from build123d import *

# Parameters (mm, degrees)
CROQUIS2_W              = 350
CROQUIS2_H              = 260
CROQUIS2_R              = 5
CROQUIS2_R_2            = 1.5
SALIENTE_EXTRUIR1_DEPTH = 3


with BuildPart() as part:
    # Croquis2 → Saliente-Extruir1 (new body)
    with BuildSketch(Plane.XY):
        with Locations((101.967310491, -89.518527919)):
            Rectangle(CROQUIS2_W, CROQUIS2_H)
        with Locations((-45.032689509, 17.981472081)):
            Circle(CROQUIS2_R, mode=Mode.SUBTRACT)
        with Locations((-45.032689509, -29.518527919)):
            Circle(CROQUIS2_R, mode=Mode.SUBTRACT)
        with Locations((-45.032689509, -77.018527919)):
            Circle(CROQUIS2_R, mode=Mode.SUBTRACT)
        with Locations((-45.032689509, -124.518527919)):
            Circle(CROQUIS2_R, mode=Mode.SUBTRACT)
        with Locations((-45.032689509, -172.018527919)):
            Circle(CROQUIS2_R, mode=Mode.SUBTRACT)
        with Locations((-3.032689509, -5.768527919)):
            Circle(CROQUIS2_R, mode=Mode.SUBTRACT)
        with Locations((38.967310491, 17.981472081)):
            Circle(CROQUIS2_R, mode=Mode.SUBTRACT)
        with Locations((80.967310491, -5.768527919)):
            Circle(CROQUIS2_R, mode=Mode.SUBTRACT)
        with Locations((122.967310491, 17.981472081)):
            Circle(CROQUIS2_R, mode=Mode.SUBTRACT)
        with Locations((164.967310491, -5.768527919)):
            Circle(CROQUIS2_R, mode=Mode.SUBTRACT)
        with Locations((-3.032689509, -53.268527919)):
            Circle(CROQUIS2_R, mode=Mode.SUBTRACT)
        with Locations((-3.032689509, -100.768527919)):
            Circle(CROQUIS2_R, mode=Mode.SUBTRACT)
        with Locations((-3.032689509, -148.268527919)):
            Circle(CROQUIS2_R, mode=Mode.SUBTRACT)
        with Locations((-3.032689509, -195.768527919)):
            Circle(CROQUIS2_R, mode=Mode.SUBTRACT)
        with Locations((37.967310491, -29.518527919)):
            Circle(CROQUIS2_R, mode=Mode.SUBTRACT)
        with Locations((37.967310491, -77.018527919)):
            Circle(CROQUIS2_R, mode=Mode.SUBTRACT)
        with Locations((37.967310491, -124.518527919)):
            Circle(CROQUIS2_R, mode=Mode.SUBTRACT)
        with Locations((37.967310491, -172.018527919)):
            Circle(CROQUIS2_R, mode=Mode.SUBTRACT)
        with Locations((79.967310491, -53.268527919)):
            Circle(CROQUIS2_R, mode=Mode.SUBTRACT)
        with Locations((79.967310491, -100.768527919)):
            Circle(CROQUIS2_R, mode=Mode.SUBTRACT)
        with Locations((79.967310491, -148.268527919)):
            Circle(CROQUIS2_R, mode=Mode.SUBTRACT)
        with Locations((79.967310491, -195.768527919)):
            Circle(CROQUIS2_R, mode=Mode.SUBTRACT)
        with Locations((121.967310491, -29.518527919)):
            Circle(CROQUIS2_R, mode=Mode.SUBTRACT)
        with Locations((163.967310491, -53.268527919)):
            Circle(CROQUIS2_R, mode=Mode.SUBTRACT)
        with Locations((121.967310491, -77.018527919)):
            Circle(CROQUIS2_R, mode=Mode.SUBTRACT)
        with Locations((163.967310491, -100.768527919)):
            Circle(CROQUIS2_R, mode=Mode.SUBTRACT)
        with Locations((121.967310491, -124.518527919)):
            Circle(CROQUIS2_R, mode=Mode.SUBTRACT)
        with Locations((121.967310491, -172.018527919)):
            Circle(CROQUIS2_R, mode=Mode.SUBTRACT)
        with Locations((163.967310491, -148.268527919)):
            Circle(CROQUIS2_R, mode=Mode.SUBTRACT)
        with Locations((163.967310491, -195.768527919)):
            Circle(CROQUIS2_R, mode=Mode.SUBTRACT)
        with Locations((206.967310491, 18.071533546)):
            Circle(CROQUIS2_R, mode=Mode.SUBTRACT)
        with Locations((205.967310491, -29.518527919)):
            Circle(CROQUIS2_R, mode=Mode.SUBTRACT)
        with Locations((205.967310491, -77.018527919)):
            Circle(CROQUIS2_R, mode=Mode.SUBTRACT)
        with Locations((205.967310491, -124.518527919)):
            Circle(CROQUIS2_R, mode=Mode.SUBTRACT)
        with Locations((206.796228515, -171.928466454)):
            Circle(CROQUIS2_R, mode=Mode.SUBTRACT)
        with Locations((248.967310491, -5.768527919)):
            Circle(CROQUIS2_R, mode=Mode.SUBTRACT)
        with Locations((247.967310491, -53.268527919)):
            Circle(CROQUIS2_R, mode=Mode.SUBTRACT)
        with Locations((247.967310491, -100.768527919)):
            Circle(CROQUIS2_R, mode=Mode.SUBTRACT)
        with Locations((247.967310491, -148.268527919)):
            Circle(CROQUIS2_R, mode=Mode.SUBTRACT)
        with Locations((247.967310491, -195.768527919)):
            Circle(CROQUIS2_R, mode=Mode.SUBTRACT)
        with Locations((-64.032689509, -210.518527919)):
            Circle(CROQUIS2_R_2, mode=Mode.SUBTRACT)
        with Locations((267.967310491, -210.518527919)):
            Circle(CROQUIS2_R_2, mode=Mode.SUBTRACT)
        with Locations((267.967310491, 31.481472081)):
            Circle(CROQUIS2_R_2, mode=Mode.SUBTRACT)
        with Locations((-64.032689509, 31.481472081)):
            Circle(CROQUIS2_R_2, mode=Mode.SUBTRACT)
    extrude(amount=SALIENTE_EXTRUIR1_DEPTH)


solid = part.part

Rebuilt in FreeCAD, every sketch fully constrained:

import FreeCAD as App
import Part
import Sketcher
from FreeCAD import Vector
Q = App.Units.Quantity


def add_polygon(sketch, points):
    """Adds a closed chain of lines whose ends are joined by coincident constraints."""
    first, n = sketch.GeometryCount, len(points)
    for a, b in zip(points, points[1:] + points[:1]):
        sketch.addGeometry(Part.LineSegment(App.Vector(*a, 0), App.Vector(*b, 0)), False)
    for i in range(n):
        sketch.addConstraint(Sketcher.Constraint("Coincident", first + i, 2, first + (i + 1) % n, 1))

doc = App.newDocument("Part")
body = doc.addObject("PartDesign::Body", "Body")

sketch1 = body.newObject("Sketcher::SketchObject", "Sketch")
sketch1.AttachmentSupport = (doc.getObject("XY_Plane"), [""])
sketch1.MapMode = "FlatFace"
add_polygon(sketch1, [(-73.03269, 40.481472), (-73.03269, -219.518528), (276.96731, -219.518528), (276.96731, 40.481472)])
sketch1.addGeometry(Part.Circle(Vector(-64.03269, -210.518528, 0), Vector(0, 0, 1), 1.5), False)
sketch1.addGeometry(Part.Circle(Vector(-3.03269, -195.768528, 0), Vector(0, 0, 1), 5), False)
sketch1.addGeometry(Part.Circle(Vector(-45.03269, -172.018528, 0), Vector(0, 0, 1), 5), False)
sketch1.addGeometry(Part.Circle(Vector(79.96731, -195.768528, 0), Vector(0, 0, 1), 5), False)
sketch1.addGeometry(Part.Circle(Vector(37.96731, -172.018528, 0), Vector(0, 0, 1), 5), False)
sketch1.addGeometry(Part.Circle(Vector(-45.03269, -124.518528, 0), Vector(0, 0, 1), 5), False)
sketch1.addGeometry(Part.Circle(Vector(-3.03269, -148.268528, 0), Vector(0, 0, 1), 5), False)
sketch1.addGeometry(Part.Circle(Vector(-3.03269, -100.768528, 0), Vector(0, 0, 1), 5), False)
sketch1.addGeometry(Part.Circle(Vector(37.96731, -124.518528, 0), Vector(0, 0, 1), 5), False)
sketch1.addGeometry(Part.Circle(Vector(79.96731, -148.268528, 0), Vector(0, 0, 1), 5), False)
sketch1.addGeometry(Part.Circle(Vector(79.96731, -100.768528, 0), Vector(0, 0, 1), 5), False)
sketch1.addGeometry(Part.Circle(Vector(163.96731, -195.768528, 0), Vector(0, 0, 1), 5), False)
sketch1.addGeometry(Part.Circle(Vector(121.96731, -172.018528, 0), Vector(0, 0, 1), 5), False)
sketch1.addGeometry(Part.Circle(Vector(267.96731, -210.518528, 0), Vector(0, 0, 1), 1.5), False)
sketch1.addGeometry(Part.Circle(Vector(247.96731, -195.768528, 0), Vector(0, 0, 1), 5), False)
sketch1.addGeometry(Part.Circle(Vector(206.796229, -171.928466, 0), Vector(0, 0, 1), 5), False)
sketch1.addGeometry(Part.Circle(Vector(121.96731, -124.518528, 0), Vector(0, 0, 1), 5), False)
sketch1.addGeometry(Part.Circle(Vector(163.96731, -148.268528, 0), Vector(0, 0, 1), 5), False)
sketch1.addGeometry(Part.Circle(Vector(163.96731, -100.768528, 0), Vector(0, 0, 1), 5), False)
sketch1.addGeometry(Part.Circle(Vector(205.96731, -124.518528, 0), Vector(0, 0, 1), 5), False)
sketch1.addGeometry(Part.Circle(Vector(247.96731, -148.268528, 0), Vector(0, 0, 1), 5), False)
sketch1.addGeometry(Part.Circle(Vector(247.96731, -100.768528, 0), Vector(0, 0, 1), 5), False)
sketch1.addGeometry(Part.Circle(Vector(-45.03269, -77.018528, 0), Vector(0, 0, 1), 5), False)
sketch1.addGeometry(Part.Circle(Vector(-45.03269, -29.518528, 0), Vector(0, 0, 1), 5), False)
sketch1.addGeometry(Part.Circle(Vector(-3.03269, -53.268528, 0), Vector(0, 0, 1), 5), False)
sketch1.addGeometry(Part.Circle(Vector(37.96731, -77.018528, 0), Vector(0, 0, 1), 5), False)
sketch1.addGeometry(Part.Circle(Vector(37.96731, -29.518528, 0), Vector(0, 0, 1), 5), False)
sketch1.addGeometry(Part.Circle(Vector(79.96731, -53.268528, 0), Vector(0, 0, 1), 5), False)
sketch1.addGeometry(Part.Circle(Vector(-3.03269, -5.768528, 0), Vector(0, 0, 1), 5), False)
sketch1.addGeometry(Part.Circle(Vector(-45.03269, 17.981472, 0), Vector(0, 0, 1), 5), False)
sketch1.addGeometry(Part.Circle(Vector(-64.03269, 31.481472, 0), Vector(0, 0, 1), 1.5), False)
sketch1.addGeometry(Part.Circle(Vector(80.96731, -5.768528, 0), Vector(0, 0, 1), 5), False)
sketch1.addGeometry(Part.Circle(Vector(38.96731, 17.981472, 0), Vector(0, 0, 1), 5), False)
sketch1.addGeometry(Part.Circle(Vector(121.96731, -77.018528, 0), Vector(0, 0, 1), 5), False)
sketch1.addGeometry(Part.Circle(Vector(121.96731, -29.518528, 0), Vector(0, 0, 1), 5), False)
sketch1.addGeometry(Part.Circle(Vector(163.96731, -53.268528, 0), Vector(0, 0, 1), 5), False)
sketch1.addGeometry(Part.Circle(Vector(205.96731, -77.018528, 0), Vector(0, 0, 1), 5), False)
sketch1.addGeometry(Part.Circle(Vector(205.96731, -29.518528, 0), Vector(0, 0, 1), 5), False)
sketch1.addGeometry(Part.Circle(Vector(247.96731, -53.268528, 0), Vector(0, 0, 1), 5), False)
sketch1.addGeometry(Part.Circle(Vector(164.96731, -5.768528, 0), Vector(0, 0, 1), 5), False)
sketch1.addGeometry(Part.Circle(Vector(122.96731, 17.981472, 0), Vector(0, 0, 1), 5), False)
sketch1.addGeometry(Part.Circle(Vector(248.96731, -5.768528, 0), Vector(0, 0, 1), 5), False)
sketch1.addGeometry(Part.Circle(Vector(206.96731, 18.071534, 0), Vector(0, 0, 1), 5), False)
sketch1.addGeometry(Part.Circle(Vector(267.96731, 31.481472, 0), Vector(0, 0, 1), 1.5), False)
sketch1.addConstraint([
    Sketcher.Constraint("Vertical", 0),
    Sketcher.Constraint("Horizontal", 1),
    Sketcher.Constraint("Vertical", 2),
    Sketcher.Constraint("Horizontal", 3),
    Sketcher.Constraint("Equal", 5, 6),
    Sketcher.Constraint("Equal", 6, 7),
    Sketcher.Constraint("Equal", 7, 8),
    Sketcher.Constraint("Equal", 8, 9),
    Sketcher.Constraint("Equal", 9, 10),
    Sketcher.Constraint("Equal", 10, 11),
    Sketcher.Constraint("Equal", 11, 12),
    Sketcher.Constraint("Equal", 12, 13),
    Sketcher.Constraint("Equal", 13, 14),
    Sketcher.Constraint("Equal", 14, 15),
    Sketcher.Constraint("Equal", 15, 16),
    Sketcher.Constraint("Equal", 4, 17),
    Sketcher.Constraint("Equal", 16, 18),
    Sketcher.Constraint("Equal", 18, 19),
    Sketcher.Constraint("Equal", 19, 20),
    Sketcher.Constraint("Equal", 20, 21),
    Sketcher.Constraint("Equal", 21, 22),
    Sketcher.Constraint("Equal", 22, 23),
    Sketcher.Constraint("Equal", 23, 24),
    Sketcher.Constraint("Equal", 24, 25),
    Sketcher.Constraint("Equal", 25, 26),
    Sketcher.Constraint("Equal", 26, 27),
    Sketcher.Constraint("Equal", 27, 28),
    Sketcher.Constraint("Equal", 28, 29),
    Sketcher.Constraint("Equal", 29, 30),
    Sketcher.Constraint("Equal", 30, 31),
    Sketcher.Constraint("Equal", 31, 32),
    Sketcher.Constraint("Equal", 32, 33),
    Sketcher.Constraint("Equal", 17, 34),
    Sketcher.Constraint("Equal", 33, 35),
    Sketcher.Constraint("Equal", 35, 36),
    Sketcher.Constraint("Equal", 36, 37),
    Sketcher.Constraint("Equal", 37, 38),
    Sketcher.Constraint("Equal", 38, 39),
    Sketcher.Constraint("Equal", 39, 40),
    Sketcher.Constraint("Equal", 40, 41),
    Sketcher.Constraint("Equal", 41, 42),
    Sketcher.Constraint("Equal", 42, 43),
    Sketcher.Constraint("Equal", 43, 44),
    Sketcher.Constraint("Equal", 44, 45),
    Sketcher.Constraint("Equal", 45, 46),
    Sketcher.Constraint("Equal", 34, 47),
    Sketcher.Constraint("Horizontal", 5, 3, 7, 3),
    Sketcher.Constraint("Horizontal", 6, 3, 8, 3),
    Sketcher.Constraint("Horizontal", 9, 3, 12, 3),
    Sketcher.Constraint("Horizontal", 10, 3, 13, 3),
    Sketcher.Constraint("Horizontal", 11, 3, 14, 3),
    Sketcher.Constraint("Horizontal", 7, 3, 15, 3),
    Sketcher.Constraint("Horizontal", 8, 3, 16, 3),
    Sketcher.Constraint("Horizontal", 4, 3, 17, 3),
    Sketcher.Constraint("Horizontal", 15, 3, 18, 3),
    Sketcher.Constraint("Horizontal", 12, 3, 20, 3),
    Sketcher.Constraint("Horizontal", 13, 3, 21, 3),
    Sketcher.Constraint("Horizontal", 14, 3, 22, 3),
    Sketcher.Constraint("Horizontal", 20, 3, 23, 3),
    Sketcher.Constraint("Horizontal", 21, 3, 24, 3),
    Sketcher.Constraint("Horizontal", 22, 3, 25, 3),
    Sketcher.Constraint("Horizontal", 26, 3, 29, 3),
    Sketcher.Constraint("Horizontal", 27, 3, 30, 3),
    Sketcher.Constraint("Horizontal", 28, 3, 31, 3),
    Sketcher.Constraint("Horizontal", 32, 3, 35, 3),
    Sketcher.Constraint("Horizontal", 33, 3, 36, 3),
    Sketcher.Constraint("Horizontal", 29, 3, 37, 3),
    Sketcher.Constraint("Horizontal", 30, 3, 38, 3),
    Sketcher.Constraint("Horizontal", 31, 3, 39, 3),
    Sketcher.Constraint("Horizontal", 37, 3, 40, 3),
    Sketcher.Constraint("Horizontal", 38, 3, 41, 3),
    Sketcher.Constraint("Horizontal", 39, 3, 42, 3),
    Sketcher.Constraint("Horizontal", 35, 3, 43, 3),
    Sketcher.Constraint("Horizontal", 36, 3, 44, 3),
    Sketcher.Constraint("Horizontal", 43, 3, 45, 3),
    Sketcher.Constraint("Horizontal", 34, 3, 47, 3),
    Sketcher.Constraint("Vertical", 6, 3, 9, 3),
    Sketcher.Constraint("Vertical", 5, 3, 10, 3),
    Sketcher.Constraint("Vertical", 10, 3, 11, 3),
    Sketcher.Constraint("Vertical", 8, 3, 12, 3),
    Sketcher.Constraint("Vertical", 7, 3, 13, 3),
    Sketcher.Constraint("Vertical", 13, 3, 14, 3),
    Sketcher.Constraint("Vertical", 16, 3, 20, 3),
    Sketcher.Constraint("Vertical", 15, 3, 21, 3),
    Sketcher.Constraint("Vertical", 21, 3, 22, 3),
    Sketcher.Constraint("Vertical", 18, 3, 24, 3),
    Sketcher.Constraint("Vertical", 24, 3, 25, 3),
    Sketcher.Constraint("Vertical", 9, 3, 26, 3),
    Sketcher.Constraint("Vertical", 26, 3, 27, 3),
    Sketcher.Constraint("Vertical", 11, 3, 28, 3),
    Sketcher.Constraint("Vertical", 12, 3, 29, 3),
    Sketcher.Constraint("Vertical", 29, 3, 30, 3),
    Sketcher.Constraint("Vertical", 14, 3, 31, 3),
    Sketcher.Constraint("Vertical", 28, 3, 32, 3),
    Sketcher.Constraint("Vertical", 27, 3, 33, 3),
    Sketcher.Constraint("Vertical", 4, 3, 34, 3),
    Sketcher.Constraint("Vertical", 20, 3, 37, 3),
    Sketcher.Constraint("Vertical", 37, 3, 38, 3),
    Sketcher.Constraint("Vertical", 22, 3, 39, 3),
    Sketcher.Constraint("Vertical", 23, 3, 40, 3),
    Sketcher.Constraint("Vertical", 40, 3, 41, 3),
    Sketcher.Constraint("Vertical", 25, 3, 42, 3),
    Sketcher.Constraint("Vertical", 17, 3, 47, 3),
    Sketcher.Constraint("Diameter", 4, Q("3 mm")),
    Sketcher.Constraint("Diameter", 5, Q("10 mm")),
    Sketcher.Constraint("DistanceX", 1, 1, 1, 2, Q("350 mm")),
    Sketcher.Constraint("DistanceY", 0, 2, 0, 1, Q("260 mm")),
    Sketcher.Constraint("DistanceX", 4, 3, 5, 3, Q("61 mm")),
    Sketcher.Constraint("DistanceX", 4, 3, 6, 3, Q("19 mm")),
    Sketcher.Constraint("DistanceX", 5, 3, 7, 3, Q("83 mm")),
    Sketcher.Constraint("DistanceX", 5, 3, 8, 3, Q("41 mm")),
    Sketcher.Constraint("DistanceY", 4, 3, 9, 3, Q("86 mm")),
    Sketcher.Constraint("DistanceY", 5, 3, 11, 3, Q("95 mm")),
    Sketcher.Constraint("DistanceX", 7, 3, 15, 3, Q("84 mm")),
    Sketcher.Constraint("DistanceX", 7, 3, 16, 3, Q("42 mm")),
    Sketcher.Constraint("DistanceX", 15, 3, 17, 3, Q("104 mm")),
    Sketcher.Constraint("DistanceX", 18, 3, 17, 3, Q("20 mm")),
    Sketcher.Constraint("DistanceX", 22, 3, 23, 3, Q("42 mm")),
    Sketcher.Constraint("DistanceY", 6, 3, 26, 3, Q("95 mm")),
    Sketcher.Constraint("DistanceY", 9, 3, 27, 3, Q("95 mm")),
    Sketcher.Constraint("DistanceY", 26, 3, 33, 3, Q("95 mm")),
    Sketcher.Constraint("DistanceY", 27, 3, 34, 3, Q("61 mm")),
    Sketcher.Constraint("DistanceX", 31, 3, 35, 3, Q("1 mm")),
    Sketcher.Constraint("DistanceY", 14, 3, 35, 3, Q("95 mm")),
    Sketcher.Constraint("DistanceX", 30, 3, 36, 3, Q("1 mm")),
    Sketcher.Constraint("DistanceX", 43, 3, 41, 3, Q("41 mm")),
    Sketcher.Constraint("DistanceX", 38, 3, 44, 3, Q("1 mm")),
    Sketcher.Constraint("DistanceX", 42, 3, 45, 3, Q("1 mm")),
    Sketcher.Constraint("DistanceX", 41, 3, 46, 3, Q("1 mm")),
    Sketcher.Constraint("DistanceX", 0, 2, 4, 3, Q("9 mm")),
    Sketcher.Constraint("DistanceY", 0, 2, 4, 3, Q("9 mm")),
    Sketcher.Constraint("DistanceY", 4, 3, 6, 3, Q("38.5 mm")),
    Sketcher.Constraint("DistanceY", 5, 3, 10, 3, Q("47.5 mm")),
    Sketcher.Constraint("DistanceY", 11, 3, 28, 3, Q("47.5 mm")),
    Sketcher.Constraint("DistanceY", 4, 3, 5, 3, Q("14.75 mm")),
    Sketcher.Constraint("DistanceX", 4, 3, -1, 1, Q("64.03269 mm")),
    Sketcher.Constraint("DistanceX", -1, 1, 19, 3, Q("206.796229 mm")),
    Sketcher.Constraint("DistanceY", 18, 3, 19, 3, Q("23.840061 mm")),
    Sketcher.Constraint("DistanceY", 41, 3, 46, 3, Q("47.590061 mm")),
    Sketcher.Constraint("DistanceY", 4, 3, -1, 1, Q("210.518528 mm")),
])
pad1 = body.newObject("PartDesign::Pad", "Pad")
pad1.Profile = sketch1
pad1.Length = 3

doc.recompute()
